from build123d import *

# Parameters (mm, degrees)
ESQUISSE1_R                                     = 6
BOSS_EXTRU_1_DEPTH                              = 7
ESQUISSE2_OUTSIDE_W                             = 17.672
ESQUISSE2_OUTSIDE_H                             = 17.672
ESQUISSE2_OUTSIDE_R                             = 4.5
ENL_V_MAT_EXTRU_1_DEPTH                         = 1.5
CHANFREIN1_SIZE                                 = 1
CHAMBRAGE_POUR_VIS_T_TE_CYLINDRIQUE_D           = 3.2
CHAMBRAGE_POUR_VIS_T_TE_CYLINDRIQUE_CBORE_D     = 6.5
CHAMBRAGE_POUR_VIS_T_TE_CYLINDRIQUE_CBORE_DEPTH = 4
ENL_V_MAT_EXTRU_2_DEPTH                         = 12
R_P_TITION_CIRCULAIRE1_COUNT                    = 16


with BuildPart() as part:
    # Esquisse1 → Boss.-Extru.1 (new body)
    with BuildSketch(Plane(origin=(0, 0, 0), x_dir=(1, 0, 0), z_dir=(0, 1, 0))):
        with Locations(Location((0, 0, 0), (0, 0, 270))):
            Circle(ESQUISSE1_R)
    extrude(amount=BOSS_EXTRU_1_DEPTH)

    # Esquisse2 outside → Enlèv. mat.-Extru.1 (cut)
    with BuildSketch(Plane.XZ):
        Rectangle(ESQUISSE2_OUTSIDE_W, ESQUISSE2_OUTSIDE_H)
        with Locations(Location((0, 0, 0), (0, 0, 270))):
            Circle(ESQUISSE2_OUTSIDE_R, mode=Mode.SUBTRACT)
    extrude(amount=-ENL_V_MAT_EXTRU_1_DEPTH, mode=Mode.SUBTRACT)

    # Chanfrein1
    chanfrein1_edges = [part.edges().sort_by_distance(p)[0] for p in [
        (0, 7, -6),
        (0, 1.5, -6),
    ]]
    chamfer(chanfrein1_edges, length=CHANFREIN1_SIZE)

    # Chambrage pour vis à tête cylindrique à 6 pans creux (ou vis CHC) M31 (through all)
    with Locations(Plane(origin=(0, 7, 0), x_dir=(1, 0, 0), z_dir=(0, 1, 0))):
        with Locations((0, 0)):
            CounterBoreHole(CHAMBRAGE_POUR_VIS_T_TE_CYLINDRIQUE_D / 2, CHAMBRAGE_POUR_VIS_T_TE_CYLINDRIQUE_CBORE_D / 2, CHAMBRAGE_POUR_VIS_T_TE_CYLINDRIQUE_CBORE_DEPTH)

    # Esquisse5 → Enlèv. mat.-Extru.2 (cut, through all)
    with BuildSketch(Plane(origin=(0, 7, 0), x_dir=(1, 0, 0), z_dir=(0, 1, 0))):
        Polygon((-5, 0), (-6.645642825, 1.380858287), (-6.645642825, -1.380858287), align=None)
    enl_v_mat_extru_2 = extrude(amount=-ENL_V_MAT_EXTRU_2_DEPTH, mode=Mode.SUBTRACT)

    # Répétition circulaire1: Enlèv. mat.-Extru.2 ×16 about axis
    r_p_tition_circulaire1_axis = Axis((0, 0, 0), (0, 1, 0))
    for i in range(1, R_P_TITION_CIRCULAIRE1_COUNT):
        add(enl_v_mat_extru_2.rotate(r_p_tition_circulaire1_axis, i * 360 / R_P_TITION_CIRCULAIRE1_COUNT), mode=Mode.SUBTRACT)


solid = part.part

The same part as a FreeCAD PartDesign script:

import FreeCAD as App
import Part
import Sketcher
Q = App.Units.Quantity


def edges_at(feature, points):
    """Names of the edges that pass closest to the given points."""
    edges = feature.Shape.Edges
    near = lambda p: min(range(len(edges)), key=lambda i: edges[i].distToShape(Part.Vertex(*p))[0])
    return sorted({f"Edge{near(p) + 1}" for p in points})

doc = App.newDocument("Part")
body = doc.addObject("PartDesign::Body", "Body")

sketch1 = body.newObject("Sketcher::SketchObject", "Sketch")
sketch1.AttachmentSupport = (doc.getObject("XZ_Plane"), [""])
sketch1.MapMode = "FlatFace"
sketch1.addGeometry(Part.Circle(App.Vector(0, 0, 0), App.Vector(0, 0, 1), 6), False)
sketch1.addConstraint([
    Sketcher.Constraint("Coincident", 0, 3, -1, 1),
    Sketcher.Constraint("Diameter", 0, 12.0),
])
pad1 = body.newObject("PartDesign::Pad", "Pad")
pad1.Profile = sketch1
pad1.Length = 7
pad1.Reversed = True

sketch2 = body.newObject("Sketcher::SketchObject", "Sketch001")
sketch2.AttachmentSupport = (doc.getObject("XZ_Plane"), [""])
sketch2.MapMode = "FlatFace"
sketch2.addGeometry([
    Part.LineSegment(App.Vector(-8.836, 8.836, 0), App.Vector(-8.836, -8.836, 0)),
    Part.LineSegment(App.Vector(-8.836, -8.836, 0), App.Vector(8.836, -8.836, 0)),
    Part.LineSegment(App.Vector(8.836, -8.836, 0), App.Vector(8.836, 8.836, 0)),
    Part.LineSegment(App.Vector(8.836, 8.836, 0), App.Vector(-8.836, 8.836, 0)),
    Part.Circle(App.Vector(0, 0, 0), App.Vector(0, 0, 1), 4.5),
], False)
sketch2.addConstraint([
    Sketcher.Constraint("Coincident", 0, 2, 1, 1),
    Sketcher.Constraint("Coincident", 1, 2, 2, 1),
    Sketcher.Constraint("Coincident", 2, 2, 3, 1),
    Sketcher.Constraint("Coincident", 3, 2, 0, 1),
    Sketcher.Constraint("Vertical", 0),
    Sketcher.Constraint("Horizontal", 1),
    Sketcher.Constraint("Vertical", 2),
    Sketcher.Constraint("Horizontal", 3),
    Sketcher.Constraint("Coincident", 4, 3, -1, 1),
    Sketcher.Constraint("Symmetric", 0, 2, 2, 2, -1, 1),
    Sketcher.Constraint("Equal", 3, 0),
    Sketcher.Constraint("Diameter", 4, 9.0),
    Sketcher.Constraint("DistanceX", 1, 1, 1, 2, 17.672),
])
pocket1 = body.newObject("PartDesign::Pocket", "Pocket")
pocket1.Profile = sketch2
pocket1.Length = 1.5
doc.recompute()

chamfer = body.newObject("PartDesign::Chamfer", "Chamfer")
chamfer.Base = (pocket1, edges_at(pocket1, [(0, 7, -6), (0, 1.5, -6)]))
chamfer.Size = 1

sketch3 = body.newObject("Sketcher::SketchObject", "Sketch002")
sketch3.AttachmentSupport = (doc.getObject("XZ_Plane"), [""])
sketch3.MapMode = "FlatFace"
sketch3.AttachmentOffset = App.Placement(App.Vector(0, 0, -7), App.Rotation())
sketch3.addGeometry(Part.Circle(App.Vector(0, 0, 0), App.Vector(0, 0, 1), 1.6), False)
sketch3.addConstraint([
    Sketcher.Constraint("Coincident", 0, 3, -1, 1),
    Sketcher.Constraint("Diameter", 0, 3.2),
])
doc.recompute()
hole = body.newObject("PartDesign::Hole", "Hole")
hole.Profile = sketch3
hole.ThreadType = "None"
hole.Diameter = 3.2
hole.DepthType = "ThroughAll"
hole.HoleCutType = "Counterbore"
hole.HoleCutDiameter = 6.5
hole.HoleCutDepth = 4
hole.Reversed = True

sketch4 = body.newObject("Sketcher::SketchObject", "Sketch003")
sketch4.AttachmentSupport = (doc.getObject("XZ_Plane"), [""])
sketch4.MapMode = "FlatFace"
sketch4.AttachmentOffset = App.Placement(App.Vector(0, 0, -7), App.Rotation())
sketch4.addGeometry([
    Part.LineSegment(App.Vector(-5, 0, 0), App.Vector(-6.645643, -1.380858, 0)),
    Part.LineSegment(App.Vector(-6.645643, -1.380858, 0), App.Vector(-6.645643, 1.380858, 0)),
    Part.LineSegment(App.Vector(-6.645643, 1.380858, 0), App.Vector(-5, 0, 0)),
], False)
sketch4.addConstraint([
    Sketcher.Constraint("Coincident", 0, 2, 1, 1),
    Sketcher.Constraint("Coincident", 1, 2, 2, 1),
    Sketcher.Constraint("Coincident", 2, 2, 0, 1),
    Sketcher.Constraint("Vertical", 1),
    Sketcher.Constraint("PointOnObject", 2, 2, -1),
    Sketcher.Constraint("Equal", 0, 2),
    Sketcher.Constraint("Angle", 0, Q("-140 deg")),
    Sketcher.Constraint("DistanceX", 2, 2, -1, 1, 5.0),
    Sketcher.Constraint("DistanceY", 1, 1, 1, 2, 2.761717),
])
pocket2 = body.newObject("PartDesign::Pocket", "Pocket001")
pocket2.Profile = sketch4
pocket2.Type = "ThroughAll"
pocket2.Reversed = True
doc.recompute()

polarpattern = body.newObject("PartDesign::PolarPattern", "PolarPattern")
polarpattern.Originals = [pocket2]
polarpattern.Axis = (doc.getObject("Y_Axis"), [""])
polarpattern.Angle = 360
polarpattern.Occurrences = 16
body.Tip = polarpattern

doc.recompute()
